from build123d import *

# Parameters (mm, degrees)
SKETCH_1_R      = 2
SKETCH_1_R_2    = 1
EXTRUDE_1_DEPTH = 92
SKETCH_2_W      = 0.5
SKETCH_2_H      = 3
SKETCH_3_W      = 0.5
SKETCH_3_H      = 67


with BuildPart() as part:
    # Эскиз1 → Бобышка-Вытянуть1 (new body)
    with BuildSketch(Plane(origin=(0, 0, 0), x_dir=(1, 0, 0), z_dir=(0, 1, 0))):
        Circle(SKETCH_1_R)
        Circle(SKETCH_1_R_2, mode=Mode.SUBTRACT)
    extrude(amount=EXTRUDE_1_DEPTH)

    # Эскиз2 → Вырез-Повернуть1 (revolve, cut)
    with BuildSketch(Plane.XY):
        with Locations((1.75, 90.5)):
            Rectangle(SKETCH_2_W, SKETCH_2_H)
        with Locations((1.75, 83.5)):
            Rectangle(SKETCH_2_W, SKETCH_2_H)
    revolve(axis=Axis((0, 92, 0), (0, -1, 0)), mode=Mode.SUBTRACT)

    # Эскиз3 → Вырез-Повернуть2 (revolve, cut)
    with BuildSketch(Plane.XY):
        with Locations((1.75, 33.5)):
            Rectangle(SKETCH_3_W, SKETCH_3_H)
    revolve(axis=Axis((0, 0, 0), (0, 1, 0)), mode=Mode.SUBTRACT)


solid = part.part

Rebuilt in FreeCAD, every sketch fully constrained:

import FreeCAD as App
import Part
import Sketcher

doc = App.newDocument("Part")
params = doc.addObject("Spreadsheet::Sheet", "Params")
for row, (alias, value) in enumerate([
    ("sketch1_diameter", "4 mm"),
    ("sketch1_diameter2", "2 mm"),
    ("pad1_length", "92 mm"),
    ("sketch2_height", "3 mm"),
    ("sketch2_width", "0.5 mm"),
    ("groove_angle", "360 deg"),
    ("sketch3_height", "67 mm"),
    ("sketch3_width", "0.5 mm"),
    ("groove2_angle", "360 deg"),
], start=1):
    params.set(f"A{row}", alias)
    params.set(f"B{row}", "=" + value)
    params.setAlias(f"B{row}", alias)

body = doc.addObject("PartDesign::Body", "Body")

# Sketch on XZ plane
sketch1 = doc.addObject("Sketcher::SketchObject", "Sketch")
body.addObject(sketch1)
sketch1.AttachmentSupport = (doc.XZ_Plane, [""])
sketch1.MapMode = "FlatFace"
sketch1.addGeometry([
    Part.Circle(App.Vector(0, 0, 0), App.Vector(0, 0, 1), 2),
    Part.Circle(App.Vector(0, 0, 0), App.Vector(0, 0, 1), 1),
], False)
sketch1.addConstraint([
    Sketcher.Constraint("Coincident", 0, 3, -1, 1),
    Sketcher.Constraint("Coincident", 1, 3, -1, 1),
    Sketcher.Constraint("Diameter", 0, 4.0),
    Sketcher.Constraint("Diameter", 1, 2.0),
])
sketch1.setExpression("Constraints[2]", "Params.sketch1_diameter")
sketch1.setExpression("Constraints[3]", "Params.sketch1_diameter2")
pad1 = doc.addObject("PartDesign::Pad", "Pad")
body.addObject(pad1)
pad1.Profile = sketch1
pad1.setExpression("Length", "Params.pad1_length")
pad1.Reversed = True

# Sketch on XY plane
sketch2 = doc.addObject("Sketcher::SketchObject", "Sketch001")
body.addObject(sketch2)
sketch2.AttachmentSupport = (doc.XY_Plane, [""])
sketch2.MapMode = "FlatFace"
sketch2.addGeometry([
    Part.LineSegment(App.Vector(1.5, 92, 0), App.Vector(1.5, 89, 0)),  # 0
    Part.LineSegment(App.Vector(1.5, 89, 0), App.Vector(2, 89, 0)),  # 1
    Part.LineSegment(App.Vector(2, 89, 0), App.Vector(2, 92, 0)),  # 2
    Part.LineSegment(App.Vector(2, 92, 0), App.Vector(1.5, 92, 0)),  # 3
    Part.LineSegment(App.Vector(1.5, 85, 0), App.Vector(1.5, 82, 0)),  # 4
    Part.LineSegment(App.Vector(1.5, 82, 0), App.Vector(2, 82, 0)),  # 5
    Part.LineSegment(App.Vector(2, 82, 0), App.Vector(2, 85, 0)),  # 6
    Part.LineSegment(App.Vector(2, 85, 0), App.Vector(1.5, 85, 0)),  # 7
], False)
sketch2.addConstraint([
    Sketcher.Constraint("Coincident", 0, 2, 1, 1),
    Sketcher.Constraint("Coincident", 1, 2, 2, 1),
    Sketcher.Constraint("Coincident", 2, 2, 3, 1),
    Sketcher.Constraint("Coincident", 3, 2, 0, 1),
    Sketcher.Constraint("Coincident", 4, 2, 5, 1),
    Sketcher.Constraint("Coincident", 5, 2, 6, 1),
    Sketcher.Constraint("Coincident", 6, 2, 7, 1),
    Sketcher.Constraint("Coincident", 7, 2, 4, 1),
    Sketcher.Constraint("Vertical", 0),
    Sketcher.Constraint("Horizontal", 1),
    Sketcher.Constraint("Vertical", 2),
    Sketcher.Constraint("Horizontal", 3),
    Sketcher.Constraint("Vertical", 4),
    Sketcher.Constraint("Horizontal", 5),
    Sketcher.Constraint("Vertical", 6),
    Sketcher.Constraint("Horizontal", 7),
    Sketcher.Constraint("Vertical", 3, 2, 4, 2),
    Sketcher.Constraint("Vertical", 2, 2, 5, 2),
    Sketcher.Constraint("Equal", 2, 4),
    Sketcher.Constraint("DistanceY", 0, 2, 0, 1, 3.0),
    Sketcher.Constraint("DistanceX", 1, 1, 1, 2, 0.5),
    Sketcher.Constraint("DistanceY", -1, 1, 0, 2, 89.0),
    Sketcher.Constraint("DistanceX", -1, 1, 1, 2, 2.0),
    Sketcher.Constraint("DistanceY", -1, 1, 4, 2, 82.0),
])
sketch2.setExpression("Constraints[19]", "Params.sketch2_height")
sketch2.setExpression("Constraints[20]", "Params.sketch2_width")
groove = doc.addObject("PartDesign::Groove", "Groove")
body.addObject(groove)
groove.Profile = sketch2
groove.ReferenceAxis = (sketch2, ["V_Axis"])
groove.setExpression("Angle", "Params.groove_angle")

# Sketch on XY plane
sketch3 = doc.addObject("Sketcher::SketchObject", "Sketch002")
body.addObject(sketch3)
sketch3.AttachmentSupport = (doc.XY_Plane, [""])
sketch3.MapMode = "FlatFace"
sketch3.addGeometry([
    Part.LineSegment(App.Vector(1.5, 67, 0), App.Vector(1.5, 0, 0)),
    Part.LineSegment(App.Vector(1.5, 0, 0), App.Vector(2, 0, 0)),
    Part.LineSegment(App.Vector(2, 0, 0), App.Vector(2, 67, 0)),
    Part.LineSegment(App.Vector(2, 67, 0), App.Vector(1.5, 67, 0)),
], False)
sketch3.addConstraint([
    Sketcher.Constraint("Coincident", 0, 2, 1, 1),
    Sketcher.Constraint("Coincident", 1, 2, 2, 1),
    Sketcher.Constraint("Coincident", 2, 2, 3, 1),
    Sketcher.Constraint("Coincident", 3, 2, 0, 1),
    Sketcher.Constraint("Vertical", 0),
    Sketcher.Constraint("Horizontal", 1),
    Sketcher.Constraint("Vertical", 2),
    Sketcher.Constraint("Horizontal", 3),
    Sketcher.Constraint("PointOnObject", 0, 2, -1),
    Sketcher.Constraint("DistanceY", 0, 2, 0, 1, 67.0),
    Sketcher.Constraint("DistanceX", 1, 1, 1, 2, 0.5),
    Sketcher.Constraint("DistanceX", -1, 1, 1, 2, 2.0),
])
sketch3.setExpression("Constraints[9]", "Params.sketch3_height")
sketch3.setExpression("Constraints[10]", "Params.sketch3_width")
groove2 = doc.addObject("PartDesign::Groove", "Groove001")
body.addObject(groove2)
groove2.Profile = sketch3
groove2.ReferenceAxis = (sketch3, ["V_Axis"])
groove2.setExpression("Angle", "Params.groove2_angle")

doc.recompute()
